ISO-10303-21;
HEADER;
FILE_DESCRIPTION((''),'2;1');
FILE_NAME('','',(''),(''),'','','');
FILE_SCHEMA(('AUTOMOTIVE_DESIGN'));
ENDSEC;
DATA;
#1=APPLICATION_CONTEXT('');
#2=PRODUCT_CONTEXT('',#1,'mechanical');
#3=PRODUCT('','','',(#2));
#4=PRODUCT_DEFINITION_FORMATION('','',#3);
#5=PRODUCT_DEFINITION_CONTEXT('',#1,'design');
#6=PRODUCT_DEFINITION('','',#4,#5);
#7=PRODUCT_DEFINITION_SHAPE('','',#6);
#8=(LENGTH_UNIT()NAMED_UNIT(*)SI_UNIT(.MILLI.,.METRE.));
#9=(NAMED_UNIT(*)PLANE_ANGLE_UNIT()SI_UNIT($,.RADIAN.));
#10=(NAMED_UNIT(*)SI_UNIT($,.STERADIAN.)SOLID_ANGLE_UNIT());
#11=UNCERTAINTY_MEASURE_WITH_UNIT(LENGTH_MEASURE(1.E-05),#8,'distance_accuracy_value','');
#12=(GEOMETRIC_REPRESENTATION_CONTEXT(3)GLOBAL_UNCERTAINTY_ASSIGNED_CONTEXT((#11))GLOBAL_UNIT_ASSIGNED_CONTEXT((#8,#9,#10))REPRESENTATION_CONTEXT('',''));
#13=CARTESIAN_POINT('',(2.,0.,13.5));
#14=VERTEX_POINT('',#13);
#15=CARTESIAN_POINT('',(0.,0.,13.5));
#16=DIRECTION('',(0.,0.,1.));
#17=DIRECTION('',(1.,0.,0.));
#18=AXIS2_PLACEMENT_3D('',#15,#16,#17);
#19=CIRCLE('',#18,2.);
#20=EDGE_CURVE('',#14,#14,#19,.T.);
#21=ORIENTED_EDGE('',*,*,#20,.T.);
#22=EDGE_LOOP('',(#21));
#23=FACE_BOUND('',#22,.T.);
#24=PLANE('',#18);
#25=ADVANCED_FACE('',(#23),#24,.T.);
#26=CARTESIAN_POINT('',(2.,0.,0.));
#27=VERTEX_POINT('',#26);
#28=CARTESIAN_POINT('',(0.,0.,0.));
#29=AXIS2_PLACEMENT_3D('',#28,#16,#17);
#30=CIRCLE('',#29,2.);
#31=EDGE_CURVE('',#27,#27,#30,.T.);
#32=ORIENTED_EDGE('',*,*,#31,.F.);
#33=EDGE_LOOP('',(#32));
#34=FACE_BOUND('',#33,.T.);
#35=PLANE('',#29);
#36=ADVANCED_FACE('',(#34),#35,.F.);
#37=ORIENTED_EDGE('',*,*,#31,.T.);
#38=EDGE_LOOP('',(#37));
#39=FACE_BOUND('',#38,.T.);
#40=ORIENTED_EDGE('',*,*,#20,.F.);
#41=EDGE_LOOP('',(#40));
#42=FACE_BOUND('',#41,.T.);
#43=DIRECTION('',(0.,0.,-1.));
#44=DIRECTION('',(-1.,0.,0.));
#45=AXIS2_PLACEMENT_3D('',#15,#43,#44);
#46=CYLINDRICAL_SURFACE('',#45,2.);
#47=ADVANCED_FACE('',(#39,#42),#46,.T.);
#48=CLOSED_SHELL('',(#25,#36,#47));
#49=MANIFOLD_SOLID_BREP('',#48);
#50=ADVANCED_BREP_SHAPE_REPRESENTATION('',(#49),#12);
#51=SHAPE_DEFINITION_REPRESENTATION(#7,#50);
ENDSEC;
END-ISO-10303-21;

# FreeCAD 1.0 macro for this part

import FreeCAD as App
import Part
import Sketcher
from FreeCAD import Vector

doc = App.newDocument("Part")
params = doc.addObject("Spreadsheet::Sheet", "Params")
for row, (alias, value) in enumerate([
    ("sketch1_diameter", "4 mm"),
    ("pad1_length", "13.5 mm"),
], start=1):
    params.set(f"A{row}", alias)
    params.set(f"B{row}", "=" + value)
    params.setAlias(f"B{row}", alias)

body = doc.addObject("PartDesign::Body", "Body")

sketch1 = body.newObject("Sketcher::SketchObject", "Sketch")
sketch1.AttachmentSupport = (doc.getObject("XY_Plane"), [""])
sketch1.MapMode = "FlatFace"
sketch1.addGeometry(Part.Circle(Vector(0, 0, 0), Vector(0, 0, 1), 2), False)
sketch1.addConstraint([
    Sketcher.Constraint("Coincident", 0, 3, -1, 1),
    Sketcher.Constraint("Diameter", 0, 4.0),
])
sketch1.setExpression("Constraints[1]", "Params.sketch1_diameter")
pad1 = body.newObject("PartDesign::Pad", "Pad")
pad1.Profile = sketch1
pad1.setExpression("Length", "Params.pad1_length")

doc.recompute()
